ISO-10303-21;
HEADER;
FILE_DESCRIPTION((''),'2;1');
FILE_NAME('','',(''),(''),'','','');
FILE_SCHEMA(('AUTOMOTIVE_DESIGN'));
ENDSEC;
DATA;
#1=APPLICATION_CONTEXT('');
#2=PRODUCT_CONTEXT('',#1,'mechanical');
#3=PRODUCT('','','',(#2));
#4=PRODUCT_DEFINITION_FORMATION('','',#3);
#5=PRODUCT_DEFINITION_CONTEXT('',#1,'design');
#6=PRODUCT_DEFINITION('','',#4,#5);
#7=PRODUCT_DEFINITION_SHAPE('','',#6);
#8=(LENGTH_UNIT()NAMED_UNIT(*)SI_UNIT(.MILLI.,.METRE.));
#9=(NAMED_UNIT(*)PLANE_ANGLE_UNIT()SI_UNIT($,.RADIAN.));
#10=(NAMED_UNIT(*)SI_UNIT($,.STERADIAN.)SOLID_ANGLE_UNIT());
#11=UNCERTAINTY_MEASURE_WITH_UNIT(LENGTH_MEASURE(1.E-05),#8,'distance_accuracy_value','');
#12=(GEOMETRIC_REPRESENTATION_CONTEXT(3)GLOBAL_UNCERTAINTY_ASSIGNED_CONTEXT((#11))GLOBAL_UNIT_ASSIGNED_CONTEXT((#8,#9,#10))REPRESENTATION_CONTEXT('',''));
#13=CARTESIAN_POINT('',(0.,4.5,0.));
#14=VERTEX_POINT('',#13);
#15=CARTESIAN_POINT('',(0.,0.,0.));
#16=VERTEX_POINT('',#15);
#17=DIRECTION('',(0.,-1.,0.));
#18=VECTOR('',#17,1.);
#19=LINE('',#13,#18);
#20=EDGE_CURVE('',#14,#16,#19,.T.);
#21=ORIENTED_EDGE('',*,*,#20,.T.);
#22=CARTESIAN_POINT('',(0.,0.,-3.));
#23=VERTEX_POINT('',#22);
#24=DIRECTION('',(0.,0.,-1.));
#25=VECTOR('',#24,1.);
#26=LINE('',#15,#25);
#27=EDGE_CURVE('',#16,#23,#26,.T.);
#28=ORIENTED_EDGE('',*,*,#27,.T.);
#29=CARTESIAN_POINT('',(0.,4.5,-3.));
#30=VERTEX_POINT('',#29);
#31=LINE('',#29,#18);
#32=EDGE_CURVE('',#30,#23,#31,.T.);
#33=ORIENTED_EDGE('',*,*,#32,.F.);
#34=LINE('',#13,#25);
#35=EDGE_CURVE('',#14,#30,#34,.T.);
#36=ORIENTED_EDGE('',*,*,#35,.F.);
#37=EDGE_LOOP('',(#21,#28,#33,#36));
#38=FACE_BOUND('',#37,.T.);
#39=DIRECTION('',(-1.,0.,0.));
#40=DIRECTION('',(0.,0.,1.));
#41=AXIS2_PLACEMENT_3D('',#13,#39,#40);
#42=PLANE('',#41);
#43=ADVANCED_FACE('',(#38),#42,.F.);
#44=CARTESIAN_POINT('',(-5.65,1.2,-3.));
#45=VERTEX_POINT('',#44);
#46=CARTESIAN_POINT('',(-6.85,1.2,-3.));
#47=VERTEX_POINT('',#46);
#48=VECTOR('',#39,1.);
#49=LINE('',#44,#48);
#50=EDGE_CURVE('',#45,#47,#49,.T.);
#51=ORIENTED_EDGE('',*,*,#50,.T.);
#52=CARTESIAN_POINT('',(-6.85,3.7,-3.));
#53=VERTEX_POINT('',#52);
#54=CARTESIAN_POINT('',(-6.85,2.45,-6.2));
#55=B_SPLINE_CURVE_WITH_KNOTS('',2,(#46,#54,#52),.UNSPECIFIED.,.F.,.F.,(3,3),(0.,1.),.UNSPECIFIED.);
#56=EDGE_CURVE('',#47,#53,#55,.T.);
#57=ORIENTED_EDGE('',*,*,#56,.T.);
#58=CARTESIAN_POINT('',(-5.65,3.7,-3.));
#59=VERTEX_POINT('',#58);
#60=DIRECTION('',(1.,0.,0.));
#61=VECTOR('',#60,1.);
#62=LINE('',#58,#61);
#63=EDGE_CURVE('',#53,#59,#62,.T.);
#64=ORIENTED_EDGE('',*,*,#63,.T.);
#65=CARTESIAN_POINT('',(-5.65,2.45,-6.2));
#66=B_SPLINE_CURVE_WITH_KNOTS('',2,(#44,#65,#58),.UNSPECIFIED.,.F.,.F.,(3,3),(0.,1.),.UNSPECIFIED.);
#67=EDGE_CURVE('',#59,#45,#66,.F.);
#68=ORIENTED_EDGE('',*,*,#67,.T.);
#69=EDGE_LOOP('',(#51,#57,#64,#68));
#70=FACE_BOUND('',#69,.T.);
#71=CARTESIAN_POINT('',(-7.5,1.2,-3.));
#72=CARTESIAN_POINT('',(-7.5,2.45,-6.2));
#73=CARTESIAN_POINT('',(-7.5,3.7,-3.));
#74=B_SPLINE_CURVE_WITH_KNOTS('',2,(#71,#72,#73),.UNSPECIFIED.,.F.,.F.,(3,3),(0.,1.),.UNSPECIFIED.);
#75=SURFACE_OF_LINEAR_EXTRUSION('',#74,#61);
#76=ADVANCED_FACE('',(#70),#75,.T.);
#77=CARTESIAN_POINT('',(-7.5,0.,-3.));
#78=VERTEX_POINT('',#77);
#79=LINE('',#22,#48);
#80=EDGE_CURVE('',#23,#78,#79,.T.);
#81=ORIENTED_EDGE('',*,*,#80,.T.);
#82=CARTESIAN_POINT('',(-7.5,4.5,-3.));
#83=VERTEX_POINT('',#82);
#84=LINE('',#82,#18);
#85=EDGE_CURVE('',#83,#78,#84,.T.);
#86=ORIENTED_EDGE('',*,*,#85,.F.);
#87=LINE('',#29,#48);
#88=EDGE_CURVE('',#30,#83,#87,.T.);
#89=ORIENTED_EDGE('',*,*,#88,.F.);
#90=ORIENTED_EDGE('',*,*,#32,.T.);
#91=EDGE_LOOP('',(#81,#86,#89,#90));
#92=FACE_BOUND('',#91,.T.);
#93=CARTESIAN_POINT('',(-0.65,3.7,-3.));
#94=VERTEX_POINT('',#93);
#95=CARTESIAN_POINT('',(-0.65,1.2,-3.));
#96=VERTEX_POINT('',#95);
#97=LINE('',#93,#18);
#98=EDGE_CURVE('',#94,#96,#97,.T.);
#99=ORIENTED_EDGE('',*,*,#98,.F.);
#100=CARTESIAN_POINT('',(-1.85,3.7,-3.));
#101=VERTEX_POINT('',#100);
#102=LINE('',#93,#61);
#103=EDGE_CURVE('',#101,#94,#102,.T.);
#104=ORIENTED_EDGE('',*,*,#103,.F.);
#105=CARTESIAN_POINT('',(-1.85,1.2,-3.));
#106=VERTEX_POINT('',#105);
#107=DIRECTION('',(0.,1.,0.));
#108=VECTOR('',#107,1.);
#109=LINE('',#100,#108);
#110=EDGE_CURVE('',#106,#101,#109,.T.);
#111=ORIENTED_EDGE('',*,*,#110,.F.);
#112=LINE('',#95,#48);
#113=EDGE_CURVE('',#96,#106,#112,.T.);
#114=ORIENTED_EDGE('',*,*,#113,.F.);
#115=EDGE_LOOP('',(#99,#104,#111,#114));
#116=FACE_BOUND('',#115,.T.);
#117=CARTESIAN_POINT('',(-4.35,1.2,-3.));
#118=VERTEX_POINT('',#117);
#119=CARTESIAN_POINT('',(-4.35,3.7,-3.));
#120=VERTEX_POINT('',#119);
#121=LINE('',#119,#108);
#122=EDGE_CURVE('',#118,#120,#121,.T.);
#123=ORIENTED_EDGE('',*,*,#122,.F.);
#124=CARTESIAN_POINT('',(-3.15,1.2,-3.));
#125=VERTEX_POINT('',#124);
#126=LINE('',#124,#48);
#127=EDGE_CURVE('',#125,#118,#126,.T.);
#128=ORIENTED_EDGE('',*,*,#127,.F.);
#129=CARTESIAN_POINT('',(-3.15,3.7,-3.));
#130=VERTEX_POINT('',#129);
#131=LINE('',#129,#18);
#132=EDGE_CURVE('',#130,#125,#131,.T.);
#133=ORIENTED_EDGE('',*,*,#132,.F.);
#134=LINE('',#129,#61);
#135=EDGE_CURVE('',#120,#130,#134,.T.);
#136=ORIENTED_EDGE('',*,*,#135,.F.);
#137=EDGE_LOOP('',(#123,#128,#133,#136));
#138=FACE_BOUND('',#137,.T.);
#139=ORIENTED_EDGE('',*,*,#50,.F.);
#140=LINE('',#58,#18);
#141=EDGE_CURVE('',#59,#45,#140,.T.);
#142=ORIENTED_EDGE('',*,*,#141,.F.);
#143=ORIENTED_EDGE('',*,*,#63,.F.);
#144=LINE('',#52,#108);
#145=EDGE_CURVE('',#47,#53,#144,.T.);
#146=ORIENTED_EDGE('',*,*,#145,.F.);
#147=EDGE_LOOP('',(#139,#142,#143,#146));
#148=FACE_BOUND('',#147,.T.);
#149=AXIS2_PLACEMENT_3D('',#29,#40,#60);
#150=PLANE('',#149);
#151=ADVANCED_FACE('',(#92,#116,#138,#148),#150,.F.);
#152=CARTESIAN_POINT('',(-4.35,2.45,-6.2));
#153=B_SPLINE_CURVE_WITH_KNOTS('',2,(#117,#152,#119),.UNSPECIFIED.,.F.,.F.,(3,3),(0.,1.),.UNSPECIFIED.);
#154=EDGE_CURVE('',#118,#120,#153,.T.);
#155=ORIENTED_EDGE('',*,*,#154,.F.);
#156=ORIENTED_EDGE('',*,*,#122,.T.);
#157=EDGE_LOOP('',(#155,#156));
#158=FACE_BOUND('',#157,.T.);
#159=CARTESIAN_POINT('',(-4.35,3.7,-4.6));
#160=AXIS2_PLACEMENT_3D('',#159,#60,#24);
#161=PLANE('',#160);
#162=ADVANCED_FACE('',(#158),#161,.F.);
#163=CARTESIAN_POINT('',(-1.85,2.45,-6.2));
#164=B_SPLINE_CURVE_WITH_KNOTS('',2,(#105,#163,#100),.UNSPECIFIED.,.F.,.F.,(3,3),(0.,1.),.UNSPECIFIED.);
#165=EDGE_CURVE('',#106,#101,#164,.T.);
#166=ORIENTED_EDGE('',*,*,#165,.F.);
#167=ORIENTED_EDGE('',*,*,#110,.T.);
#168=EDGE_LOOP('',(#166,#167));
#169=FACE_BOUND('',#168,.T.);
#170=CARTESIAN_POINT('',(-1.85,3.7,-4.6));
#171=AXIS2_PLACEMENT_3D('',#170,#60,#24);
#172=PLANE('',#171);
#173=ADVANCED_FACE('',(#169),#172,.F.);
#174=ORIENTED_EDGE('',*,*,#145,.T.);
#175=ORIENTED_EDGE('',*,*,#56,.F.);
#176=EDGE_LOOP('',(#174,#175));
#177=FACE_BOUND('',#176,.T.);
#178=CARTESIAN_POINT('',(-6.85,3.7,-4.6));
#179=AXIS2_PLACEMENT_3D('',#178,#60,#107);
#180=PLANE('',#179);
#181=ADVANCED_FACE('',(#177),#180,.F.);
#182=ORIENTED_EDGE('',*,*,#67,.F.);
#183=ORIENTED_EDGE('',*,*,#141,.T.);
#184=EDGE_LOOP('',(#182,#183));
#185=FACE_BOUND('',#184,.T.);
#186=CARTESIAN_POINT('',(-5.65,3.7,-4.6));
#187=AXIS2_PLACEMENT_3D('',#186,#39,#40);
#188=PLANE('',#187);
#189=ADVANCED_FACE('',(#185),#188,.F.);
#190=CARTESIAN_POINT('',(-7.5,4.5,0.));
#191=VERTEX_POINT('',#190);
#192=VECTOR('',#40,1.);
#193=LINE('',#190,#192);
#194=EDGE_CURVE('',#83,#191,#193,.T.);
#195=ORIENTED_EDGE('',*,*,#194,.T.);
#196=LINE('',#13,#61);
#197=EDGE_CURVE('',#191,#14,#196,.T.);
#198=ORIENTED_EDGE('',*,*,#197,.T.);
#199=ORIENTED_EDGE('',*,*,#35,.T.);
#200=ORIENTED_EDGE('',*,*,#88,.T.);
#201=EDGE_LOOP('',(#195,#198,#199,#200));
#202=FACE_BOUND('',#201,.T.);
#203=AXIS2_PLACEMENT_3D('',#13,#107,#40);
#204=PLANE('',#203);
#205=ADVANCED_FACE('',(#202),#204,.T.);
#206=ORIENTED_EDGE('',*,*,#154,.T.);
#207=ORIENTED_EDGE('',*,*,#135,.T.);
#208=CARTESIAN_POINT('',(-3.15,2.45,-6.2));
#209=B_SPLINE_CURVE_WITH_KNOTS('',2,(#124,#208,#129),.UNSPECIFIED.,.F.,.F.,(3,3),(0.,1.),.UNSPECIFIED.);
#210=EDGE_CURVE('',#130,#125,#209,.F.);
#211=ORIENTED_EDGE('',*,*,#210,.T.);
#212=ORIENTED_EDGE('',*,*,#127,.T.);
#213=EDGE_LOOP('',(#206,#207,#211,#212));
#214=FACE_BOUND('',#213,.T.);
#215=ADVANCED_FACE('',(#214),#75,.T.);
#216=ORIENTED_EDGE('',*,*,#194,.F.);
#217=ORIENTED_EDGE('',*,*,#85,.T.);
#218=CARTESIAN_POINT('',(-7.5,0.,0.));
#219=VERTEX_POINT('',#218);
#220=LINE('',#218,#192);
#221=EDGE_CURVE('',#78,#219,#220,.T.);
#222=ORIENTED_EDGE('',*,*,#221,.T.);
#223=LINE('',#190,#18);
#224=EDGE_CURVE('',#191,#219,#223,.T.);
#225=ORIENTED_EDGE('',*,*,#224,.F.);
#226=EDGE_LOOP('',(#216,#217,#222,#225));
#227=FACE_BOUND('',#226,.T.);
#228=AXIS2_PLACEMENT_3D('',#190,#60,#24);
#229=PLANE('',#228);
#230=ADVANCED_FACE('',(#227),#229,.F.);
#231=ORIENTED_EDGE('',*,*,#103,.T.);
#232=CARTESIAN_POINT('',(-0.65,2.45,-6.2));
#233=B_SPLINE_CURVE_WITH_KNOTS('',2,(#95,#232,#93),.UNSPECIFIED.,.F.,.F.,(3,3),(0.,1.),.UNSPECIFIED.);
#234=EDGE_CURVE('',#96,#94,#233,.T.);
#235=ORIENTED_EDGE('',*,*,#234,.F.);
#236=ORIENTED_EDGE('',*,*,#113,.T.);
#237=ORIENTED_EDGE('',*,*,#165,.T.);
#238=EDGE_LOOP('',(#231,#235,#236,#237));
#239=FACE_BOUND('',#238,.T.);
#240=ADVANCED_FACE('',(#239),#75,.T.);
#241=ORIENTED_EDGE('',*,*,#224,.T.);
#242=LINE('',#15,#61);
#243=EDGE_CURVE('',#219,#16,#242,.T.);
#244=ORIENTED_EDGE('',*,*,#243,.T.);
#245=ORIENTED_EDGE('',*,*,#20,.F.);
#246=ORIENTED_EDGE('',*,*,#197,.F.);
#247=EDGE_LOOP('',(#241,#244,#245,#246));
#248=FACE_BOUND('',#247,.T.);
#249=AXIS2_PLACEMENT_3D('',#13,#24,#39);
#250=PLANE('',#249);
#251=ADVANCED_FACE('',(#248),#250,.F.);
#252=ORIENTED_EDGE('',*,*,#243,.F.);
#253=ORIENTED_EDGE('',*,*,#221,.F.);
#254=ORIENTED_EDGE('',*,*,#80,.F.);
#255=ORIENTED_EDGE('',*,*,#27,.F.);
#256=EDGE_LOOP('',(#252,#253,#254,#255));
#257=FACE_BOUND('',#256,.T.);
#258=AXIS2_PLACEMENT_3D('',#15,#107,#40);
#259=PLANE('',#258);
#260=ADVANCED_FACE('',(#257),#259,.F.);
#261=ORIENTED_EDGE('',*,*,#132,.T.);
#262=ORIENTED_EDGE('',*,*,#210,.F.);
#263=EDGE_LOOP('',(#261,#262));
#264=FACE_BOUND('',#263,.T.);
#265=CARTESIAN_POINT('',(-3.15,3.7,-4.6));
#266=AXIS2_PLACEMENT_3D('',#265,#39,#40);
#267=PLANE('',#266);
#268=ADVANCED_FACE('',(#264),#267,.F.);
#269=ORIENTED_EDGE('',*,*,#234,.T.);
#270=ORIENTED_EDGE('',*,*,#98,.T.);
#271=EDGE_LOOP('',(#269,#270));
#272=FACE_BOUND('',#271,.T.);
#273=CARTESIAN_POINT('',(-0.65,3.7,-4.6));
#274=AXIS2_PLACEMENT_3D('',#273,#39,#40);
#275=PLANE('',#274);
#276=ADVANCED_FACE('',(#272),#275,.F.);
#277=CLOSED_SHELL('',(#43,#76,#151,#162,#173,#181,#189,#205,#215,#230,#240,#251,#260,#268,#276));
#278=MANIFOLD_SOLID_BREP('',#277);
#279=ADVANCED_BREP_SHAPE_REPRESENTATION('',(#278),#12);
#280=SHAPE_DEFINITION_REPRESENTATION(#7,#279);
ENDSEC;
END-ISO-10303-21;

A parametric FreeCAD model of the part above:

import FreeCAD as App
import Part
import Sketcher


def add_polygon(sketch, points):
    """Adds a closed chain of lines whose ends are joined by coincident constraints."""
    first, n = sketch.GeometryCount, len(points)
    for a, b in zip(points, points[1:] + points[:1]):
        sketch.addGeometry(Part.LineSegment(App.Vector(*a, 0), App.Vector(*b, 0)), False)
    for i in range(n):
        sketch.addConstraint(Sketcher.Constraint("Coincident", first + i, 2, first + (i + 1) % n, 1))

doc = App.newDocument("Part")
body = doc.addObject("PartDesign::Body", "Body")

# Sketch on XZ plane
sketch1 = body.newObject("Sketcher::SketchObject", "Sketch")
sketch1.AttachmentSupport = (doc.getObject("XZ_Plane"), [""])
sketch1.MapMode = "FlatFace"
add_polygon(sketch1, [(-7.5, -3), (-7.5, 0), (0, 0), (0, -3)])  # lines 0-3
sketch1.addConstraint([
    Sketcher.Constraint("Vertical", 0),
    Sketcher.Constraint("Horizontal", 1),
    Sketcher.Constraint("Vertical", 2),
    Sketcher.Constraint("Horizontal", 3),
    Sketcher.Constraint("Coincident", 1, 2, -1, 1),
    Sketcher.Constraint("DistanceY", 0, 1, 0, 2, 3.0),
    Sketcher.Constraint("DistanceX", 1, 1, 1, 2, 7.5),
])
pad1 = body.newObject("PartDesign::Pad", "Pad")
pad1.Profile = sketch1
pad1.Length = 4.5
pad1.Reversed = True

# Sketch on XY plane
sketch2 = body.newObject("Sketcher::SketchObject", "Sketch001")
sketch2.AttachmentSupport = (doc.getObject("XY_Plane"), [""])
sketch2.MapMode = "FlatFace"
sketch2.AttachmentOffset = App.Placement(App.Vector(0, 0, -3), App.Rotation())
add_polygon(sketch2, [(-0.7, 3.7), (-0.7, 1.2), (-1.9, 1.2), (-1.9, 3.7)])  # lines 0-3
add_polygon(sketch2, [(-3.1, 3.7), (-3.1, 1.2), (-4.3, 1.2), (-4.3, 3.7)])  # lines 4-7
add_polygon(sketch2, [(-5.7, 3.7), (-5.7, 1.2), (-6.8, 1.2), (-6.8, 3.7)])  # lines 8-11
sketch2.addConstraint([
    Sketcher.Constraint("Vertical", 0),
    Sketcher.Constraint("Horizontal", 1),
    Sketcher.Constraint("Vertical", 2),
    Sketcher.Constraint("Horizontal", 3),
    Sketcher.Constraint("Vertical", 4),
    Sketcher.Constraint("Horizontal", 5),
    Sketcher.Constraint("Vertical", 6),
    Sketcher.Constraint("Horizontal", 7),
    Sketcher.Constraint("Vertical", 8),
    Sketcher.Constraint("Horizontal", 9),
    Sketcher.Constraint("Vertical", 10),
    Sketcher.Constraint("Horizontal", 11),
    Sketcher.Constraint("Horizontal", 1, 2, 4, 2),
    Sketcher.Constraint("Horizontal", 3, 2, 6, 2),
    Sketcher.Constraint("Horizontal", 5, 2, 8, 2),
    Sketcher.Constraint("Horizontal", 7, 2, 10, 2),
    Sketcher.Constraint("Equal", 3, 5),
    Sketcher.Constraint("Equal", 7, 9),
    Sketcher.Constraint("DistanceX", 1, 2, 1, 1, 1.2),
    Sketcher.Constraint("DistanceY", 0, 2, 0, 1, 2.5),
    Sketcher.Constraint("DistanceY", -1, 1, 0, 2, 1.2),
    Sketcher.Constraint("DistanceX", 4, 2, 1, 2, 1.3),
    Sketcher.Constraint("DistanceX", 8, 2, 5, 2, 1.3),
    Sketcher.Constraint("DistanceX", 0, 2, -1, 1, 0.65),
])
pad2 = body.newObject("PartDesign::Pad", "Pad001")
pad2.Profile = sketch2
pad2.Length = 1.6
pad2.Reversed = True

# Sketch on YZ plane
sketch3 = body.newObject("Sketcher::SketchObject", "Sketch002")
sketch3.AttachmentSupport = (doc.getObject("YZ_Plane"), [""])
sketch3.MapMode = "FlatFace"
sketch3.AttachmentOffset = App.Placement(App.Vector(0, 0, -0.65), App.Rotation())
sketch3.addGeometry([
    Part.BSplineCurve([App.Vector(2.45, -4.6, 0), App.Vector(3.075, -4.6, 0), App.Vector(3.7, -3, 0)], [3, 3], [0.5, 1], False, 2, [1, 1, 1], False),  # 0
    Part.LineSegment(App.Vector(2.45, -4.6, 0), App.Vector(3.7, -4.6, 0)),  # 1
    Part.LineSegment(App.Vector(3.7, -4.6, 0), App.Vector(3.7, -3, 0)),  # 2
    Part.BSplineCurve([App.Vector(1.2, -3, 0), App.Vector(1.825, -4.6, 0), App.Vector(2.45, -4.6, 0)], [3, 3], [0, 0.5], False, 2, [1, 1, 1], False),  # 3
    Part.LineSegment(App.Vector(1.2, -3, 0), App.Vector(1.2, -4.6, 0)),  # 4
    Part.LineSegment(App.Vector(1.2, -4.6, 0), App.Vector(2.45, -4.6, 0)),  # 5
], False)
sketch3.addConstraint([
    Sketcher.Constraint("Block", 0),
    Sketcher.Constraint("Block", 3),
    Sketcher.Constraint("Coincident", 0, 1, 1, 1),
    Sketcher.Constraint("Coincident", 1, 2, 2, 1),
    Sketcher.Constraint("Coincident", 2, 2, 0, 2),
    Sketcher.Constraint("Coincident", 3, 1, 4, 1),
    Sketcher.Constraint("Coincident", 4, 2, 5, 1),
    Sketcher.Constraint("Coincident", 5, 2, 3, 2),
    Sketcher.Constraint("Horizontal", 1),
    Sketcher.Constraint("Vertical", 2),
    Sketcher.Constraint("Vertical", 4),
    Sketcher.Constraint("Horizontal", 5),
])
pocket1 = body.newObject("PartDesign::Pocket", "Pocket")
pocket1.Profile = sketch3
pocket1.Type = "ThroughAll"

doc.recompute()
